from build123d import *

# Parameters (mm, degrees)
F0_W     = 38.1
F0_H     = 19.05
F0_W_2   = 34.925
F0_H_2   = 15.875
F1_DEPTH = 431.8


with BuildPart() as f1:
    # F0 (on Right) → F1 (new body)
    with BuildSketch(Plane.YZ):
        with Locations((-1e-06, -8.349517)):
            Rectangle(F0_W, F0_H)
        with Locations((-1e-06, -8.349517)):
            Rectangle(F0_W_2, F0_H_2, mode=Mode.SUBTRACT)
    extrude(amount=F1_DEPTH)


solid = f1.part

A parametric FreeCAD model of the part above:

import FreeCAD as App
import Part
import Sketcher
from FreeCAD import Vector
Q = App.Units.Quantity


def add_polygon(sketch, points):
    """Adds a closed chain of lines whose ends are joined by coincident constraints."""
    first, n = sketch.GeometryCount, len(points)
    for a, b in zip(points, points[1:] + points[:1]):
        sketch.addGeometry(Part.LineSegment(App.Vector(*a, 0), App.Vector(*b, 0)), False)
    for i in range(n):
        sketch.addConstraint(Sketcher.Constraint("Coincident", first + i, 2, first + (i + 1) % n, 1))

doc = App.newDocument("Part")
body = doc.addObject("PartDesign::Body", "Body")

# Sketch on YZ plane
sketch1 = body.newObject("Sketcher::SketchObject", "Sketch")
sketch1.AttachmentSupport = (doc.getObject("YZ_Plane"), [""])
sketch1.MapMode = "FlatFace"
add_polygon(sketch1, [(-19.050001, 1.175483), (-19.050001, -17.874517), (19.049999, -17.874517), (19.049999, 1.175483)])  # lines 0-3
add_polygon(sketch1, [(17.462499, -16.287017), (-17.462501, -16.287017), (-17.462501, -0.412017), (17.462499, -0.412017)])  # lines 4-7
sketch1.addConstraint(Sketcher.Constraint("Vertical", 0))
sketch1.addConstraint(Sketcher.Constraint("Horizontal", 1))
sketch1.addConstraint(Sketcher.Constraint("Vertical", 2))
sketch1.addConstraint(Sketcher.Constraint("Horizontal", 3))
sketch1.addConstraint(Sketcher.Constraint("Horizontal", 4))
sketch1.addConstraint(Sketcher.Constraint("Vertical", 5))
sketch1.addConstraint(Sketcher.Constraint("Horizontal", 6))
sketch1.addConstraint(Sketcher.Constraint("Vertical", 7))
sketch1.addConstraint(Sketcher.Constraint("DistanceX", 1, 1, 1, 2, Q("1.5 in")))
sketch1.addConstraint(Sketcher.Constraint("DistanceY", 0, 2, 0, 1, Q("0.75 in")))
sketch1.addConstraint(Sketcher.Constraint("DistanceX", 4, 2, 4, 1, Q("1.375 in")))
sketch1.addConstraint(Sketcher.Constraint("DistanceY", 5, 1, 5, 2, Q("0.625 in")))
sketch1.addConstraint(Sketcher.Constraint("DistanceX", 0, 2, -1, 1, Q("0.75 in")))
sketch1.addConstraint(Sketcher.Constraint("DistanceX", 4, 2, -1, 1, Q("0.6875 in")))
sketch1.addConstraint(Sketcher.Constraint("DistanceY", 0, 2, 4, 2, Q("0.0625 in")))
sketch1.addConstraint(Sketcher.Constraint("DistanceY", 0, 2, -1, 1, Q("17.874517 mm")))
pad1 = body.newObject("PartDesign::Pad", "Pad")
pad1.Profile = sketch1
pad1.Length = Q("17 in")

doc.recompute()
